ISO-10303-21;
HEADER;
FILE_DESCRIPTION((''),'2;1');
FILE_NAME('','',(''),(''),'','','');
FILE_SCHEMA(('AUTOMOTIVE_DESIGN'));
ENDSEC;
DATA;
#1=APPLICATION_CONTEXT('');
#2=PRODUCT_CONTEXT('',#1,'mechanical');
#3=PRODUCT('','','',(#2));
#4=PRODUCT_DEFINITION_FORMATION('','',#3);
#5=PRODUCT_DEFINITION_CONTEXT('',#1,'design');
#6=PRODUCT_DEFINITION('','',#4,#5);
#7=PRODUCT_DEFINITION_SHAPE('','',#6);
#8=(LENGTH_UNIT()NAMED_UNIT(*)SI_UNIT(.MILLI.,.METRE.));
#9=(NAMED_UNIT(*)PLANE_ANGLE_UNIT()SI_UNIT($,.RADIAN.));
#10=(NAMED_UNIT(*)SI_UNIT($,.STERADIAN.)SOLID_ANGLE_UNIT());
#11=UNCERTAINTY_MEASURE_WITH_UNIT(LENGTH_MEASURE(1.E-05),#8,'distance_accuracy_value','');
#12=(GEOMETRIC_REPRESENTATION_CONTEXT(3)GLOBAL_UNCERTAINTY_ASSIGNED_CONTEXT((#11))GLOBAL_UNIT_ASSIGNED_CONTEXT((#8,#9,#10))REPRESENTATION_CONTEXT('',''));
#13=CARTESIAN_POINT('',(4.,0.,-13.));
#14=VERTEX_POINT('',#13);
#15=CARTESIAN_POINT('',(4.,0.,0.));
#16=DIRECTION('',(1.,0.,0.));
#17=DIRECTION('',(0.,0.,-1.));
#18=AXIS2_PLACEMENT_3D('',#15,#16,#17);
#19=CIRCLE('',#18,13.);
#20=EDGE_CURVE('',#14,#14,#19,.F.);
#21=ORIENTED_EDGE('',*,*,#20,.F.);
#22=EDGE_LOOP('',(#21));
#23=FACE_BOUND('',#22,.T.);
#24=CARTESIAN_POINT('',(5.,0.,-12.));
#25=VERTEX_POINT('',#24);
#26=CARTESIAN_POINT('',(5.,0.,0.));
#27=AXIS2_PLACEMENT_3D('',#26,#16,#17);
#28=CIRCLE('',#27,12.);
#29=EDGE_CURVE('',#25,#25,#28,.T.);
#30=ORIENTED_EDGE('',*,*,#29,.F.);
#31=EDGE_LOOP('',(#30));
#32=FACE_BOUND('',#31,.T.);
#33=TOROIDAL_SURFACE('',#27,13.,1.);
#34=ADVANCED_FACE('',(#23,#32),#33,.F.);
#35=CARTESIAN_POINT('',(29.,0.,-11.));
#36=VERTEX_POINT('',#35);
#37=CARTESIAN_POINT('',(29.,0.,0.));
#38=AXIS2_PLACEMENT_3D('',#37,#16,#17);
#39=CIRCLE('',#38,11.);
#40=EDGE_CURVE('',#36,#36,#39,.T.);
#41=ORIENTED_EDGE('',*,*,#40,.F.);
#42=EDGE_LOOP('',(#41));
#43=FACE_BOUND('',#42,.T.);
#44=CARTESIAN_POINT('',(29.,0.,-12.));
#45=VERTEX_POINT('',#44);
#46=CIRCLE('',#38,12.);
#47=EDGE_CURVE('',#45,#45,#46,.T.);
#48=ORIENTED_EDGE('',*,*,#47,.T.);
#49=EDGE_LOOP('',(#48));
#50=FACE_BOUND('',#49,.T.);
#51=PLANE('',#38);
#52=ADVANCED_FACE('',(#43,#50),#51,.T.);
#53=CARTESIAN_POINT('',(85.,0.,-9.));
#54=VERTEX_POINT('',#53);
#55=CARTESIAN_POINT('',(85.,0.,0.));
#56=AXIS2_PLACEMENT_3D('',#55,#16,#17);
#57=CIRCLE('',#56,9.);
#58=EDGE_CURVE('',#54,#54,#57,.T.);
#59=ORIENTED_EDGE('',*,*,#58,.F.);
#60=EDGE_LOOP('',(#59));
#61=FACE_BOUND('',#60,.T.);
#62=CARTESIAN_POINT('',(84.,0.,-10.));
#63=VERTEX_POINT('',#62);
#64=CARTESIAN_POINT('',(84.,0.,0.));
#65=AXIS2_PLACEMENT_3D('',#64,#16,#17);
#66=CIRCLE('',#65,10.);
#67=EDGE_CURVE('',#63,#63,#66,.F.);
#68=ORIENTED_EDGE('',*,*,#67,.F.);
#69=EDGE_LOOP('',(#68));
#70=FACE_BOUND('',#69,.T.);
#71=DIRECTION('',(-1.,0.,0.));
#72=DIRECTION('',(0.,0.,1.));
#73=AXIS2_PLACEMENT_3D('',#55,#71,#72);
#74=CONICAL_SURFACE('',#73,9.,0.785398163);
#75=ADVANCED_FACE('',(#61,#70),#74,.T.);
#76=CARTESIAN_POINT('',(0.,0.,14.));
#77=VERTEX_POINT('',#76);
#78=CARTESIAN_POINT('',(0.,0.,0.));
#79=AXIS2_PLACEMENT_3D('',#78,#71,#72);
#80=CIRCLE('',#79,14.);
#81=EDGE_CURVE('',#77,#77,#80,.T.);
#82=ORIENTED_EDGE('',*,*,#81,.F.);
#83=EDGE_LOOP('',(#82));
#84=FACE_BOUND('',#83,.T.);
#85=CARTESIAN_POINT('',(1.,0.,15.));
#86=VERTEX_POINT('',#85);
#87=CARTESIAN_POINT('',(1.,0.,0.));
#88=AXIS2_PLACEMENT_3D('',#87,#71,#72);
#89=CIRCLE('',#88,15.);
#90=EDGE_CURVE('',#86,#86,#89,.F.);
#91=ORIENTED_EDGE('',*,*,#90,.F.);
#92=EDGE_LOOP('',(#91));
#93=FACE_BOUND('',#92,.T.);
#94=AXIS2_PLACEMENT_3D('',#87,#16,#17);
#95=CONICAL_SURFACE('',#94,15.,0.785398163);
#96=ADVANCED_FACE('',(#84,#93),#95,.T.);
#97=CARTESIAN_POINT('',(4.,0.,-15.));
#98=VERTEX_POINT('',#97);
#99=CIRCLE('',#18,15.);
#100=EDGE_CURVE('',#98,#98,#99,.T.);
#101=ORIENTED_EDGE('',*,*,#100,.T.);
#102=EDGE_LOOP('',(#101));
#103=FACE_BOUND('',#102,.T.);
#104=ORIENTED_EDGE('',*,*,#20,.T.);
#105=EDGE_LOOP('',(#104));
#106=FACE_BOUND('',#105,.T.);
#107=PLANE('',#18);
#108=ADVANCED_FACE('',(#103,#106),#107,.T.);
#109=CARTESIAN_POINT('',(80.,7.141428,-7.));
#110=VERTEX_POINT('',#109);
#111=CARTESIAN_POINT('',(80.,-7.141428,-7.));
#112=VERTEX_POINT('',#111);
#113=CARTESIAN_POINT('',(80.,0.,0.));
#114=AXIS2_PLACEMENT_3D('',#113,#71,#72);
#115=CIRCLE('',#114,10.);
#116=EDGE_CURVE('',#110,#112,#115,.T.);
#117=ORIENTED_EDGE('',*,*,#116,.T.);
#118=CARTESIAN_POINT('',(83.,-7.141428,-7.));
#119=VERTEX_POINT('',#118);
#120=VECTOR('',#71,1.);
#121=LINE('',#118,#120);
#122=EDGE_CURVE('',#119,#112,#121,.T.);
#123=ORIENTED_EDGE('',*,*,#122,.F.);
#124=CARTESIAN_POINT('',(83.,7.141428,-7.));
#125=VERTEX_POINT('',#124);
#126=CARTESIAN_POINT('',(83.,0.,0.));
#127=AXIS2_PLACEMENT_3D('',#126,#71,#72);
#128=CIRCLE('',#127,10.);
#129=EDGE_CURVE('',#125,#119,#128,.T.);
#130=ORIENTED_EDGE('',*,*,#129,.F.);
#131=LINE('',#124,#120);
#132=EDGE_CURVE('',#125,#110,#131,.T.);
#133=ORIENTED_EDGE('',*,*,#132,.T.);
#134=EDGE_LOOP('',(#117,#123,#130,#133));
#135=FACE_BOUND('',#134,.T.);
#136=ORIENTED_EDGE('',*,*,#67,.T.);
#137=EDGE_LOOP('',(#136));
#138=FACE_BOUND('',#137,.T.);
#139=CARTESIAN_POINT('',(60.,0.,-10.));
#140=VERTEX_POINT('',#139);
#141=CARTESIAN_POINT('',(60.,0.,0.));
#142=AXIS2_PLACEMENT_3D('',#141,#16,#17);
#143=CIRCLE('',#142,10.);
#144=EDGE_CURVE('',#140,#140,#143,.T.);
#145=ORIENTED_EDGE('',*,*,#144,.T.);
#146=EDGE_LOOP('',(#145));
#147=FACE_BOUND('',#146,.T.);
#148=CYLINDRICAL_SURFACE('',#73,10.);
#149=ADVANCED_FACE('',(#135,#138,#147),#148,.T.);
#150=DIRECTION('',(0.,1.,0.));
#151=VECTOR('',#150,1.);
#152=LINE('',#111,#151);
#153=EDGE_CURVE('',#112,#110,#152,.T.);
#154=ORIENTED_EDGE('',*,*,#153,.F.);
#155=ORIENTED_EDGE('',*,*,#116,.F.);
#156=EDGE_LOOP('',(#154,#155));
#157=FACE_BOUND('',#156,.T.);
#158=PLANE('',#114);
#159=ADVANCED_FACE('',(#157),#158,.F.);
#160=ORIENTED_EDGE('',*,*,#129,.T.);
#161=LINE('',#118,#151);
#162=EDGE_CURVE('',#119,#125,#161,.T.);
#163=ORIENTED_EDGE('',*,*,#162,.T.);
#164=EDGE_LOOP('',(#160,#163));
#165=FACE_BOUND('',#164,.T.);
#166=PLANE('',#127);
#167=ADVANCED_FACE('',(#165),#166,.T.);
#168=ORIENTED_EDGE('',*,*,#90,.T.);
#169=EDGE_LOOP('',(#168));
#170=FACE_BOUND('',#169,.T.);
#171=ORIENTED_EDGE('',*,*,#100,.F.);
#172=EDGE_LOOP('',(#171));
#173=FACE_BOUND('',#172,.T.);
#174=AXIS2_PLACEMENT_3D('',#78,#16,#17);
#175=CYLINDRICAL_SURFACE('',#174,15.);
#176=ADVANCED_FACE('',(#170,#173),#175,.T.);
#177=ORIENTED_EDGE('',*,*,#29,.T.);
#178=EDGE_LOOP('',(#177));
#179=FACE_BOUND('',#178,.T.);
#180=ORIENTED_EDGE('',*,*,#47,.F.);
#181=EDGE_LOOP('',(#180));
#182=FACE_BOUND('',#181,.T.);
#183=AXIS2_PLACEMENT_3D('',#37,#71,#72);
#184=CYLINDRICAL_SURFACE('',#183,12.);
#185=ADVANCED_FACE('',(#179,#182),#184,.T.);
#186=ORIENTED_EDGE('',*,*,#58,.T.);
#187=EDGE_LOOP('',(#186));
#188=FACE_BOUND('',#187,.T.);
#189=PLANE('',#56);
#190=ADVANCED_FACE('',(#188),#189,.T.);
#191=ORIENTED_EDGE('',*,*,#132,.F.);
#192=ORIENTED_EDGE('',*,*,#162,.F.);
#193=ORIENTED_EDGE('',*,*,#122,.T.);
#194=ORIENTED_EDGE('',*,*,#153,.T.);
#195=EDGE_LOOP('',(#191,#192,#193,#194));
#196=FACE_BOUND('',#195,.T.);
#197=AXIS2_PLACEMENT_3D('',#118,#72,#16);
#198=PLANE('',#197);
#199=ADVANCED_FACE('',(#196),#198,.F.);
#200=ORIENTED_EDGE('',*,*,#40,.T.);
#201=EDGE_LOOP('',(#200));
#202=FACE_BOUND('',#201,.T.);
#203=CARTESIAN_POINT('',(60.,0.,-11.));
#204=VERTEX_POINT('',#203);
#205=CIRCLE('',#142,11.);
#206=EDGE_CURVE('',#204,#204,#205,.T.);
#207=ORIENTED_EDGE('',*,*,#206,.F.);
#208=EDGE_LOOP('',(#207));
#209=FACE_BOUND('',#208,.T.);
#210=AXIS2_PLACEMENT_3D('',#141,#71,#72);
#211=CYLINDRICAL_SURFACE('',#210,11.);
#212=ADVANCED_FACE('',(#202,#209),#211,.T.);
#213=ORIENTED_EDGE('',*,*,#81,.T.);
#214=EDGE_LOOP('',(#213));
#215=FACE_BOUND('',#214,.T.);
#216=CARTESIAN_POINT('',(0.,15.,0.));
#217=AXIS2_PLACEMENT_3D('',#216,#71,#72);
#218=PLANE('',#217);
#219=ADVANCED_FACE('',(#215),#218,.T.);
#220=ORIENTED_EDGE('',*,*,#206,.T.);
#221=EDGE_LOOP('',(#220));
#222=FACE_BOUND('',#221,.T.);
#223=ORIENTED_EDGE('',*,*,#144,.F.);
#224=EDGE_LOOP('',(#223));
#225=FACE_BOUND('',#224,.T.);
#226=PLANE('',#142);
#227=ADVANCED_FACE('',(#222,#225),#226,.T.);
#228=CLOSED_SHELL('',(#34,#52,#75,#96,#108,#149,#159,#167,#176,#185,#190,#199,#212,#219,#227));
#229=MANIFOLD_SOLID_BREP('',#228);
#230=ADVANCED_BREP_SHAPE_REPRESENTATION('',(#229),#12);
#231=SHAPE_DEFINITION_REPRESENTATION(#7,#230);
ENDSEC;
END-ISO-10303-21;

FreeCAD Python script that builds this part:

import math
import FreeCAD as App
import Part
import Sketcher
from FreeCAD import Vector
Q = App.Units.Quantity


def edges_at(feature, points):
    """Names of the edges that pass closest to the given points."""
    edges = feature.Shape.Edges
    near = lambda p: min(range(len(edges)), key=lambda i: edges[i].distToShape(Part.Vertex(*p))[0])
    return sorted({f"Edge{near(p) + 1}" for p in points})

doc = App.newDocument("Part")
params = doc.addObject("Spreadsheet::Sheet", "Params")
for row, (alias, value) in enumerate([
    ("sketch1_width", "4 mm"),
    ("sketch1_height", "15 mm"),
    ("revolution_angle", "360 deg"),
    ("sketch2_diameter", "24 mm"),
    ("pad1_length", "25 mm"),
    ("sketch3_diameter", "22 mm"),
    ("pad2_length", "31 mm"),
    ("sketch4_diameter", "20 mm"),
    ("pad3_length", "25 mm"),
    ("sketch5_radius", "10 mm"),
    ("pocket1_length", "3 mm"),
    ("chamfer_size", "1 mm"),
    ("fillet_radius", "1 mm"),
], start=1):
    params.set(f"A{row}", alias)
    params.set(f"B{row}", "=" + value)
    params.setAlias(f"B{row}", alias)

body = doc.addObject("PartDesign::Body", "Body")

# Sketch on XY plane
sketch1 = body.newObject("Sketcher::SketchObject", "Sketch")
sketch1.AttachmentSupport = (doc.getObject("XY_Plane"), [""])
sketch1.MapMode = "FlatFace"
sketch1.addGeometry(Part.LineSegment(Vector(0, 15, 0), Vector(0, 0, 0)), False)
sketch1.addGeometry(Part.LineSegment(Vector(0, 0, 0), Vector(4, 0, 0)), False)
sketch1.addGeometry(Part.LineSegment(Vector(4, 0, 0), Vector(4, 15, 0)), False)
sketch1.addGeometry(Part.LineSegment(Vector(4, 15, 0), Vector(0, 15, 0)), False)
sketch1.addConstraint(Sketcher.Constraint("Coincident", 0, 2, 1, 1))
sketch1.addConstraint(Sketcher.Constraint("Coincident", 1, 2, 2, 1))
sketch1.addConstraint(Sketcher.Constraint("Coincident", 2, 2, 3, 1))
sketch1.addConstraint(Sketcher.Constraint("Coincident", 3, 2, 0, 1))
sketch1.addConstraint(Sketcher.Constraint("Vertical", 0))
sketch1.addConstraint(Sketcher.Constraint("Horizontal", 1))
sketch1.addConstraint(Sketcher.Constraint("Vertical", 2))
sketch1.addConstraint(Sketcher.Constraint("Horizontal", 3))
sketch1.addConstraint(Sketcher.Constraint("Coincident", 0, 2, -1, 1))
sketch1.addConstraint(Sketcher.Constraint("DistanceX", 1, 1, 1, 2, Q("4 mm")))
sketch1.addConstraint(Sketcher.Constraint("DistanceY", 0, 2, 0, 1, Q("15 mm")))
sketch1.setExpression("Constraints[9]", "Params.sketch1_width")
sketch1.setExpression("Constraints[10]", "Params.sketch1_height")
revolution = body.newObject("PartDesign::Revolution", "Revolution")
revolution.Profile = sketch1
revolution.ReferenceAxis = (sketch1, ["H_Axis"])
revolution.setExpression("Angle", "Params.revolution_angle")

# Sketch on YZ plane
sketch2 = body.newObject("Sketcher::SketchObject", "Sketch001")
sketch2.AttachmentSupport = (doc.getObject("YZ_Plane"), [""])
sketch2.MapMode = "FlatFace"
sketch2.AttachmentOffset = App.Placement(Vector(0, 0, 4), App.Rotation())
sketch2.addGeometry(Part.Circle(Vector(0, 0, 0), Vector(0, 0, 1), 12), False)
sketch2.addConstraint(Sketcher.Constraint("Coincident", 0, 3, -1, 1))
sketch2.addConstraint(Sketcher.Constraint("Diameter", 0, Q("24 mm")))
sketch2.setExpression("Constraints[1]", "Params.sketch2_diameter")
pad1 = body.newObject("PartDesign::Pad", "Pad")
pad1.Profile = sketch2
pad1.setExpression("Length", "Params.pad1_length")

# Sketch on YZ plane
sketch3 = body.newObject("Sketcher::SketchObject", "Sketch002")
sketch3.AttachmentSupport = (doc.getObject("YZ_Plane"), [""])
sketch3.MapMode = "FlatFace"
sketch3.AttachmentOffset = App.Placement(Vector(0, 0, 29), App.Rotation())
sketch3.addGeometry(Part.Circle(Vector(0, 0, 0), Vector(0, 0, 1), 11), False)
sketch3.addConstraint(Sketcher.Constraint("Coincident", 0, 3, -1, 1))
sketch3.addConstraint(Sketcher.Constraint("Diameter", 0, Q("22 mm")))
sketch3.setExpression("Constraints[1]", "Params.sketch3_diameter")
pad2 = body.newObject("PartDesign::Pad", "Pad001")
pad2.Profile = sketch3
pad2.setExpression("Length", "Params.pad2_length")

# Sketch on YZ plane
sketch4 = body.newObject("Sketcher::SketchObject", "Sketch003")
sketch4.AttachmentSupport = (doc.getObject("YZ_Plane"), [""])
sketch4.MapMode = "FlatFace"
sketch4.AttachmentOffset = App.Placement(Vector(0, 0, 60), App.Rotation())
sketch4.addGeometry(Part.Circle(Vector(0, 0, 0), Vector(0, 0, 1), 10), False)
sketch4.addConstraint(Sketcher.Constraint("Coincident", 0, 3, -1, 1))
sketch4.addConstraint(Sketcher.Constraint("Diameter", 0, Q("20 mm")))
sketch4.setExpression("Constraints[1]", "Params.sketch4_diameter")
pad3 = body.newObject("PartDesign::Pad", "Pad002")
pad3.Profile = sketch4
pad3.setExpression("Length", "Params.pad3_length")

# Sketch on YZ plane
sketch5 = body.newObject("Sketcher::SketchObject", "Sketch004")
sketch5.AttachmentSupport = (doc.getObject("YZ_Plane"), [""])
sketch5.MapMode = "FlatFace"
sketch5.AttachmentOffset = App.Placement(Vector(0, 0, 80), App.Rotation())
sketch5.addGeometry(Part.LineSegment(Vector(-7.141428, -7, 0), Vector(7.141428, -7, 0)), False)
sketch5.addGeometry(Part.ArcOfCircle(Part.Circle(Vector(0, 0, 0), Vector(0, 0, 1), 10), math.radians(-135.572996), math.radians(-44.427004)), False)
sketch5.addConstraint(Sketcher.Constraint("Coincident", 0, 1, 1, 1))
sketch5.addConstraint(Sketcher.Constraint("Coincident", 1, 2, 0, 2))
sketch5.addConstraint(Sketcher.Constraint("Horizontal", 0))
sketch5.addConstraint(Sketcher.Constraint("Coincident", 1, 3, -1, 1))
sketch5.addConstraint(Sketcher.Constraint("Radius", 1, Q("10 mm")))
sketch5.addConstraint(Sketcher.Constraint("DistanceY", 0, 1, -1, 1, Q("7 mm")))
sketch5.setExpression("Constraints[4]", "Params.sketch5_radius")
pocket1 = body.newObject("PartDesign::Pocket", "Pocket")
pocket1.Profile = sketch5
pocket1.setExpression("Length", "Params.pocket1_length")
pocket1.Reversed = True
doc.recompute()

chamfer = body.newObject("PartDesign::Chamfer", "Chamfer")
chamfer.Base = (pocket1, edges_at(pocket1, [(85, 0, 10), (0, 0, 15)]))
chamfer.setExpression("Size", "Params.chamfer_size")
doc.recompute()

fillet = body.newObject("PartDesign::Fillet", "Fillet")
fillet.Base = (chamfer, edges_at(chamfer, [(4, 0, 12)]))
fillet.setExpression("Radius", "Params.fillet_radius")

doc.recompute()
